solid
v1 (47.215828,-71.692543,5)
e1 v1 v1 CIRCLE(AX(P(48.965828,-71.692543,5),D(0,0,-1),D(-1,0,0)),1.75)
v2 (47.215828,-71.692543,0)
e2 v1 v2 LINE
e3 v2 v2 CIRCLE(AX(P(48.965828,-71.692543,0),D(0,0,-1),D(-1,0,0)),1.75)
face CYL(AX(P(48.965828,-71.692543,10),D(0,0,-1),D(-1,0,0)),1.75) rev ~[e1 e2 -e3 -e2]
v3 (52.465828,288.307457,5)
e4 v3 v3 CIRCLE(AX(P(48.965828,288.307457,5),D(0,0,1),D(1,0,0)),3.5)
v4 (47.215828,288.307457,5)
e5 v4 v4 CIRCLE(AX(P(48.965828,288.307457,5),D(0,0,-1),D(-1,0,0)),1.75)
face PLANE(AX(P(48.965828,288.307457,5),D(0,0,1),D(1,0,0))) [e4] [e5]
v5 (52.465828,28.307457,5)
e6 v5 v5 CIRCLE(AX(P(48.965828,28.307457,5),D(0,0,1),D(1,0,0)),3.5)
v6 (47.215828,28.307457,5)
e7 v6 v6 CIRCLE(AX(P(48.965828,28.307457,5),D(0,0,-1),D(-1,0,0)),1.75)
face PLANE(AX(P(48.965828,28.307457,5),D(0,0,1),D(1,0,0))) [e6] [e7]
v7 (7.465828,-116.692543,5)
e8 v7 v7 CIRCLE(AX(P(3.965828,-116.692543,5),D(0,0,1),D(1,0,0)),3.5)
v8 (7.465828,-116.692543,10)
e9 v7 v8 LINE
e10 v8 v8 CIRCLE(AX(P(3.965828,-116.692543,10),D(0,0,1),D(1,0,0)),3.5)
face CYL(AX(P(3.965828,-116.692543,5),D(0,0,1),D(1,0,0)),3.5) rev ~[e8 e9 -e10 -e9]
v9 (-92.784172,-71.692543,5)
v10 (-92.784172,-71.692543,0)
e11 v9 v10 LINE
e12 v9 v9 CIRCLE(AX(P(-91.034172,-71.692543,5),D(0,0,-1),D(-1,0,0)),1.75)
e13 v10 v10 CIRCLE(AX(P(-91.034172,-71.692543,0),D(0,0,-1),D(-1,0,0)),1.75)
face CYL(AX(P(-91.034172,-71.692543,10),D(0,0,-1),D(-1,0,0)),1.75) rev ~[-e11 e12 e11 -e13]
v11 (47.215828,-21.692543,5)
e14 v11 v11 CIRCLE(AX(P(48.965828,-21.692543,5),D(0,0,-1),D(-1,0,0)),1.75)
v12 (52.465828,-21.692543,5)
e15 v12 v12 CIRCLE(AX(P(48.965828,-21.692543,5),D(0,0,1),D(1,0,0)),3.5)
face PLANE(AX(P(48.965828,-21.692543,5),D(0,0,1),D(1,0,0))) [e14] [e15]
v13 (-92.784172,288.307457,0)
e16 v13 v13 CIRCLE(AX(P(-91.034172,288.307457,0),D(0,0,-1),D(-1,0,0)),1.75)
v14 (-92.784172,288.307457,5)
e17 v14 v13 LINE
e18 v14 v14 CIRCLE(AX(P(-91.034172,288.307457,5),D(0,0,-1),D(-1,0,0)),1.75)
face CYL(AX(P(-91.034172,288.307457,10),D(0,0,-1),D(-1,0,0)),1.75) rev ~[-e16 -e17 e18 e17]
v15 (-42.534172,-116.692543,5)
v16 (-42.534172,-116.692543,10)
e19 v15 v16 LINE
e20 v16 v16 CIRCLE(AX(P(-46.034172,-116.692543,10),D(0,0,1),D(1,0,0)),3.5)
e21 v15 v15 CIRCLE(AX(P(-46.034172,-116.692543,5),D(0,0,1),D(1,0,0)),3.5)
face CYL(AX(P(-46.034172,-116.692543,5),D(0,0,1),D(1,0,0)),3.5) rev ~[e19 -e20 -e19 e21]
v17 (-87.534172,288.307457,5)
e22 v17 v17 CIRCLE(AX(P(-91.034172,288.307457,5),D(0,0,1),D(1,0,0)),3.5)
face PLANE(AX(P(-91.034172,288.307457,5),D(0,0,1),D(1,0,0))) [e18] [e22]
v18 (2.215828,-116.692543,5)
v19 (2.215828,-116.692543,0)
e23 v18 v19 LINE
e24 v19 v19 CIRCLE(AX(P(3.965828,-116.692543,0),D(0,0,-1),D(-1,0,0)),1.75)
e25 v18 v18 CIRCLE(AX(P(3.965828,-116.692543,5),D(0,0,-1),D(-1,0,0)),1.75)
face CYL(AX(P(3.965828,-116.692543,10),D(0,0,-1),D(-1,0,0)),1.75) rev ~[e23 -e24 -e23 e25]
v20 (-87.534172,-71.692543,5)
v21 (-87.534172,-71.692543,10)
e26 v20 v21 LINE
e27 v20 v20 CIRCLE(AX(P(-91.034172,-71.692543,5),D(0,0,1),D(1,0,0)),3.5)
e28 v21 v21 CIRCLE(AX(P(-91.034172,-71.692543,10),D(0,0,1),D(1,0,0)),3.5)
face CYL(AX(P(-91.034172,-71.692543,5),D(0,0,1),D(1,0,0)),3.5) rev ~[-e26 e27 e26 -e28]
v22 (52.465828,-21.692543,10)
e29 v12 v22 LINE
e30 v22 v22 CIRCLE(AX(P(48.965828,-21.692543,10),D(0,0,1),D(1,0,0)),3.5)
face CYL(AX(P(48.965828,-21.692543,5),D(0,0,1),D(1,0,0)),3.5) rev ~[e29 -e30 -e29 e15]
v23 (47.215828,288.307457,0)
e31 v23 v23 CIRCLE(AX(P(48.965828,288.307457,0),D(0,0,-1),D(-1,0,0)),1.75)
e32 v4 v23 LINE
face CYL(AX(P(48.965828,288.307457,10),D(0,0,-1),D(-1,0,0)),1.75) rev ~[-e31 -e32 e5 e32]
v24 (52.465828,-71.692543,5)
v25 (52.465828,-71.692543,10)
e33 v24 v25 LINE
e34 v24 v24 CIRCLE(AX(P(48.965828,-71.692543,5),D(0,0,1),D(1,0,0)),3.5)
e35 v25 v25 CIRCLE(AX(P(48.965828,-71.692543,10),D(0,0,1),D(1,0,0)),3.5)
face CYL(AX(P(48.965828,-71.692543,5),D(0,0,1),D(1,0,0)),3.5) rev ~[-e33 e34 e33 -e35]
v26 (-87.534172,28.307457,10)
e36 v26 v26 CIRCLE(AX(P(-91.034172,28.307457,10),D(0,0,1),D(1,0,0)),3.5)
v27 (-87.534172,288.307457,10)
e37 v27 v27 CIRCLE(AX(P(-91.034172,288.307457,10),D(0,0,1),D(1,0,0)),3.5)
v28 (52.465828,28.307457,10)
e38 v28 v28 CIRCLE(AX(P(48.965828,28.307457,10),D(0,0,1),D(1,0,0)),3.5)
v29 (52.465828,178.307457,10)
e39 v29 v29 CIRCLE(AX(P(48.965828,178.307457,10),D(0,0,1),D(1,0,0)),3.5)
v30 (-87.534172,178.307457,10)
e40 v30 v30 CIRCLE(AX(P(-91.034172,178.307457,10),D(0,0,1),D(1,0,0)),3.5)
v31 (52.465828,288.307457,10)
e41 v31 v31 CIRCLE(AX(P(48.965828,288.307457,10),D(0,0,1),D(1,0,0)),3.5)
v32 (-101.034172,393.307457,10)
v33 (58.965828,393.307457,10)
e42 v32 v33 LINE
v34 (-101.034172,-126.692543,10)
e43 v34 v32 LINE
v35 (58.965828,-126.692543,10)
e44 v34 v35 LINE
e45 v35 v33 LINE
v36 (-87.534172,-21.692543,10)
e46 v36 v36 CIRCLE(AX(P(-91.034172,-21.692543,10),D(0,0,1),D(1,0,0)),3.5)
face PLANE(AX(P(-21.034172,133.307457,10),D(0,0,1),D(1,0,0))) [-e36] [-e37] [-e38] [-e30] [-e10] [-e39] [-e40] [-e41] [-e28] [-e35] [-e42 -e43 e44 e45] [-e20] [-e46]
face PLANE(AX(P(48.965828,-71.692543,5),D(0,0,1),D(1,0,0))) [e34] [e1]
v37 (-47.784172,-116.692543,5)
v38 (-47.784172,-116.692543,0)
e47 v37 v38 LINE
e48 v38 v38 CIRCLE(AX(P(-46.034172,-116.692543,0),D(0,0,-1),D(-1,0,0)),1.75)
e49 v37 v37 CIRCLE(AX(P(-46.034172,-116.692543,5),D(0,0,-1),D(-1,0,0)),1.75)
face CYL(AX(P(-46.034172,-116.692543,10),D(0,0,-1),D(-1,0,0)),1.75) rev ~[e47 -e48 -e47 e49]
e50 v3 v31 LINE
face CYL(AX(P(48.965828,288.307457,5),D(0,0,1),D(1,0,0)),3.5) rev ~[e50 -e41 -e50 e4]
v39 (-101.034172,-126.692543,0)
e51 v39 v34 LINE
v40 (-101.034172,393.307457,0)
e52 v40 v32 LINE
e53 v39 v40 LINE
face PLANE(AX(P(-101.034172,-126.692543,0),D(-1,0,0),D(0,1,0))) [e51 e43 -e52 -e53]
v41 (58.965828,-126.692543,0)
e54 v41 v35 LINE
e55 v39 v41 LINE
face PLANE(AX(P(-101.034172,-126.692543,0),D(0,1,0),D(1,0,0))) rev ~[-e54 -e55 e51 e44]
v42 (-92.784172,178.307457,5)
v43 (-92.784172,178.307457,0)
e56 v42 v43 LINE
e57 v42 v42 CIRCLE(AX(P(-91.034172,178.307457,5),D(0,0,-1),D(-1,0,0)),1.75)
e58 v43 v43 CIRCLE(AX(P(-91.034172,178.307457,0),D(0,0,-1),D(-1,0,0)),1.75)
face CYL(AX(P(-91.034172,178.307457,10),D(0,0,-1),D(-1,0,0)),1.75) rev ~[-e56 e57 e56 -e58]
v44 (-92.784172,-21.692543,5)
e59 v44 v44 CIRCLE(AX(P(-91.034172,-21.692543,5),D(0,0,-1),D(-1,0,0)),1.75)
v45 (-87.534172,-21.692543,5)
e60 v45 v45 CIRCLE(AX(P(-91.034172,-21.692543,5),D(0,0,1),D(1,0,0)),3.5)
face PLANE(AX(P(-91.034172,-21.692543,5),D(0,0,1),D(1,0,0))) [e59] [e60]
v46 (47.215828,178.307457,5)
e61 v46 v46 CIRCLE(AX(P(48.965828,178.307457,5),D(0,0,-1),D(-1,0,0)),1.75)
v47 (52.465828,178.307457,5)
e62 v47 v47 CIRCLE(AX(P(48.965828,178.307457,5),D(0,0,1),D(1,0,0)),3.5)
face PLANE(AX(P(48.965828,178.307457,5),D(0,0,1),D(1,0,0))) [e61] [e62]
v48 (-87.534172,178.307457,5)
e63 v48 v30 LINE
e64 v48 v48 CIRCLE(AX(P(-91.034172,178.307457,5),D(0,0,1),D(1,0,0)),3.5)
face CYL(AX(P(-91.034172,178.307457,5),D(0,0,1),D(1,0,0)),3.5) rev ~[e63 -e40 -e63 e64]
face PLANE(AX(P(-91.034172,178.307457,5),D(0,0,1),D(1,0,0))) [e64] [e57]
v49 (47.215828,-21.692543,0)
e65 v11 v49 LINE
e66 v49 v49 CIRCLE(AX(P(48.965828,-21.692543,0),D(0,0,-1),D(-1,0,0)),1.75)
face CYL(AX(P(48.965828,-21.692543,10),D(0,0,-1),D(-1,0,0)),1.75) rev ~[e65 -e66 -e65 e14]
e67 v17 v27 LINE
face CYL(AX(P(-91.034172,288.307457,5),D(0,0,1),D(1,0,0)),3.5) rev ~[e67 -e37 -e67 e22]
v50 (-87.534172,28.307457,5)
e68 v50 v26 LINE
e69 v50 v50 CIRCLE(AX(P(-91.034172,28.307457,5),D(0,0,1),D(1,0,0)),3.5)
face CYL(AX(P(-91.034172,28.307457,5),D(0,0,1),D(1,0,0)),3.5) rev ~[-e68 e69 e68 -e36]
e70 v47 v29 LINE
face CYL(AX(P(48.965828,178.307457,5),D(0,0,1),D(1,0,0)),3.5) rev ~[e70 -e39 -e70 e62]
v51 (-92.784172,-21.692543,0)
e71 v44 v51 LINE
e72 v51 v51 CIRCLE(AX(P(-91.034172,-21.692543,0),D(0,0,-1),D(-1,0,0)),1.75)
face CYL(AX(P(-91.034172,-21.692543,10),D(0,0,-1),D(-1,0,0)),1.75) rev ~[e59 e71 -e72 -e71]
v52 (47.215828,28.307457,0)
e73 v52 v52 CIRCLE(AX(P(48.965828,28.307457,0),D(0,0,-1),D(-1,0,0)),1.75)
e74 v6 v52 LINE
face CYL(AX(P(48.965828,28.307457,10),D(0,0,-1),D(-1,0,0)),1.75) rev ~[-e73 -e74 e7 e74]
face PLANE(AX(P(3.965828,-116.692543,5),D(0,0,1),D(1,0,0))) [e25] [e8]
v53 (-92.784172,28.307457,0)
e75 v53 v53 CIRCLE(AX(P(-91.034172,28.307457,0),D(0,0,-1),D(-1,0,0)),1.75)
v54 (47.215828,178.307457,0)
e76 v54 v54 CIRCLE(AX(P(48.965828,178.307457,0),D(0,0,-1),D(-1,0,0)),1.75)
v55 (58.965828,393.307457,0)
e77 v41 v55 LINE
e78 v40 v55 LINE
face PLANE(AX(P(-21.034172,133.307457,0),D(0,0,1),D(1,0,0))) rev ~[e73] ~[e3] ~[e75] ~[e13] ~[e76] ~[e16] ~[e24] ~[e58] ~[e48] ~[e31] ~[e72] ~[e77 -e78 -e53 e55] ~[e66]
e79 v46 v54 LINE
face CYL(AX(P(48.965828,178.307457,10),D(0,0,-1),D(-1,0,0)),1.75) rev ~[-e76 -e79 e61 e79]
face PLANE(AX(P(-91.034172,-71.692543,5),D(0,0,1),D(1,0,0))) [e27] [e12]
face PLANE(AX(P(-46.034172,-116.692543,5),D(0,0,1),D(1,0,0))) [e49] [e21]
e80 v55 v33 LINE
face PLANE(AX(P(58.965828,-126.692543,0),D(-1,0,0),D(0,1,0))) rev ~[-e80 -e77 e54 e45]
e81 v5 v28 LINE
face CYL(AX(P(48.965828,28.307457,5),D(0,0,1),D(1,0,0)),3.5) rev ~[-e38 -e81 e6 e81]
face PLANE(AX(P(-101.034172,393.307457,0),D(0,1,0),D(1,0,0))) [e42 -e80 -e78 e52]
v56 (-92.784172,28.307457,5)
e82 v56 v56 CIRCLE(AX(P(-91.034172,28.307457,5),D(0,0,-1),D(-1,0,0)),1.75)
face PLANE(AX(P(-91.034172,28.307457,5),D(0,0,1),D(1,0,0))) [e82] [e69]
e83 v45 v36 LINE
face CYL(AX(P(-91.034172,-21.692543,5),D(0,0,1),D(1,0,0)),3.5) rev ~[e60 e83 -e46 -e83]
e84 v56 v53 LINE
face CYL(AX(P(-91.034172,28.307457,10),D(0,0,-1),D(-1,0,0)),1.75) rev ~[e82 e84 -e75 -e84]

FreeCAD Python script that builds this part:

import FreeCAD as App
import Part
import Sketcher
from FreeCAD import Vector

doc = App.newDocument("Part")
body = doc.addObject("PartDesign::Body", "Body")

# Sketch on XY plane
sketch1 = body.newObject("Sketcher::SketchObject", "Sketch")
sketch1.AttachmentSupport = (doc.getObject("XY_Plane"), [""])
sketch1.MapMode = "FlatFace"
sketch1.addGeometry([
    Part.LineSegment(Vector(-101, 393, 0), Vector(-101, -127, 0)),
    Part.LineSegment(Vector(-101, -127, 0), Vector(59, -127, 0)),
    Part.LineSegment(Vector(59, -127, 0), Vector(59, 393, 0)),
    Part.LineSegment(Vector(59, 393, 0), Vector(-101, 393, 0)),
], False)
sketch1.addConstraint([
    Sketcher.Constraint("Coincident", 0, 2, 1, 1),
    Sketcher.Constraint("Coincident", 1, 2, 2, 1),
    Sketcher.Constraint("Coincident", 2, 2, 3, 1),
    Sketcher.Constraint("Coincident", 3, 2, 0, 1),
    Sketcher.Constraint("Vertical", 0),
    Sketcher.Constraint("Horizontal", 1),
    Sketcher.Constraint("Vertical", 2),
    Sketcher.Constraint("Horizontal", 3),
    Sketcher.Constraint("DistanceX", 1, 1, 1, 2, 160.0),
    Sketcher.Constraint("DistanceY", 0, 2, 0, 1, 520.0),
    Sketcher.Constraint("DistanceX", 0, 2, -1, 1, 101.034172),
    Sketcher.Constraint("DistanceY", 0, 2, -1, 1, 126.692543),
])
pad1 = body.newObject("PartDesign::Pad", "Pad")
pad1.Profile = sketch1
pad1.Length = 10

# Sketch on XY plane
sketch2 = body.newObject("Sketcher::SketchObject", "Sketch001")
sketch2.AttachmentSupport = (doc.getObject("XY_Plane"), [""])
sketch2.MapMode = "FlatFace"
sketch2.AttachmentOffset = App.Placement(Vector(0, 0, 10), App.Rotation())
sketch2.addGeometry([
    Part.Circle(Vector(-91, 288.3, 0), Vector(0, 0, 1), 1.8),  # 0
    Part.Circle(Vector(-91, 178.3, 0), Vector(0, 0, 1), 1.8),  # 1
    Part.Circle(Vector(49, 178.3, 0), Vector(0, 0, 1), 1.8),  # 2
    Part.Circle(Vector(49, 288.3, 0), Vector(0, 0, 1), 1.8),  # 3
    Part.Circle(Vector(49, 28.3, 0), Vector(0, 0, 1), 1.8),  # 4
    Part.Circle(Vector(49, -21.7, 0), Vector(0, 0, 1), 1.8),  # 5
    Part.Circle(Vector(49, -71.7, 0), Vector(0, 0, 1), 1.8),  # 6
    Part.Circle(Vector(4, -116.7, 0), Vector(0, 0, 1), 1.8),  # 7
    Part.Circle(Vector(-46, -116.7, 0), Vector(0, 0, 1), 1.8),  # 8
    Part.Circle(Vector(-91, -71.7, 0), Vector(0, 0, 1), 1.8),  # 9
    Part.Circle(Vector(-91, -21.7, 0), Vector(0, 0, 1), 1.8),  # 10
    Part.Circle(Vector(-91, 28.3, 0), Vector(0, 0, 1), 1.8),  # 11
], False)
sketch2.addConstraint([
    Sketcher.Constraint("Equal", 0, 1),
    Sketcher.Constraint("Equal", 1, 2),
    Sketcher.Constraint("Equal", 2, 3),
    Sketcher.Constraint("Equal", 3, 4),
    Sketcher.Constraint("Equal", 4, 5),
    Sketcher.Constraint("Equal", 5, 6),
    Sketcher.Constraint("Equal", 6, 7),
    Sketcher.Constraint("Equal", 7, 8),
    Sketcher.Constraint("Equal", 8, 9),
    Sketcher.Constraint("Equal", 9, 10),
    Sketcher.Constraint("Equal", 10, 11),
    Sketcher.Constraint("Horizontal", 1, 3, 2, 3),
    Sketcher.Constraint("Horizontal", 0, 3, 3, 3),
    Sketcher.Constraint("Horizontal", 7, 3, 8, 3),
    Sketcher.Constraint("Horizontal", 6, 3, 9, 3),
    Sketcher.Constraint("Horizontal", 5, 3, 10, 3),
    Sketcher.Constraint("Horizontal", 4, 3, 11, 3),
    Sketcher.Constraint("Vertical", 0, 3, 1, 3),
    Sketcher.Constraint("Vertical", 2, 3, 3, 3),
    Sketcher.Constraint("Vertical", 3, 3, 4, 3),
    Sketcher.Constraint("Vertical", 4, 3, 5, 3),
    Sketcher.Constraint("Vertical", 5, 3, 6, 3),
    Sketcher.Constraint("Vertical", 1, 3, 9, 3),
    Sketcher.Constraint("Vertical", 9, 3, 10, 3),
    Sketcher.Constraint("Vertical", 10, 3, 11, 3),
    Sketcher.Constraint("Diameter", 0, 3.5),
    Sketcher.Constraint("DistanceY", 1, 3, 0, 3, 110.0),
    Sketcher.Constraint("DistanceX", 1, 3, 2, 3, 140.0),
    Sketcher.Constraint("DistanceY", 4, 3, 2, 3, 150.0),
    Sketcher.Constraint("DistanceY", 5, 3, 4, 3, 50.0),
    Sketcher.Constraint("DistanceY", 6, 3, 5, 3, 50.0),
    Sketcher.Constraint("DistanceX", 7, 3, 6, 3, 45.0),
    Sketcher.Constraint("DistanceY", 7, 3, 6, 3, 45.0),
    Sketcher.Constraint("DistanceX", 8, 3, 7, 3, 50.0),
    Sketcher.Constraint("DistanceX", 0, 3, -1, 1, 91.034172),
    Sketcher.Constraint("DistanceY", -1, 1, 0, 3, 288.307457),
])
doc.recompute()
hole = body.newObject("PartDesign::Hole", "Hole")
hole.Profile = sketch2
hole.ThreadType = "None"
hole.Diameter = 3.5
hole.DepthType = "ThroughAll"
hole.HoleCutType = "Counterbore"
hole.HoleCutDiameter = 7
hole.HoleCutDepth = 5

doc.recompute()
